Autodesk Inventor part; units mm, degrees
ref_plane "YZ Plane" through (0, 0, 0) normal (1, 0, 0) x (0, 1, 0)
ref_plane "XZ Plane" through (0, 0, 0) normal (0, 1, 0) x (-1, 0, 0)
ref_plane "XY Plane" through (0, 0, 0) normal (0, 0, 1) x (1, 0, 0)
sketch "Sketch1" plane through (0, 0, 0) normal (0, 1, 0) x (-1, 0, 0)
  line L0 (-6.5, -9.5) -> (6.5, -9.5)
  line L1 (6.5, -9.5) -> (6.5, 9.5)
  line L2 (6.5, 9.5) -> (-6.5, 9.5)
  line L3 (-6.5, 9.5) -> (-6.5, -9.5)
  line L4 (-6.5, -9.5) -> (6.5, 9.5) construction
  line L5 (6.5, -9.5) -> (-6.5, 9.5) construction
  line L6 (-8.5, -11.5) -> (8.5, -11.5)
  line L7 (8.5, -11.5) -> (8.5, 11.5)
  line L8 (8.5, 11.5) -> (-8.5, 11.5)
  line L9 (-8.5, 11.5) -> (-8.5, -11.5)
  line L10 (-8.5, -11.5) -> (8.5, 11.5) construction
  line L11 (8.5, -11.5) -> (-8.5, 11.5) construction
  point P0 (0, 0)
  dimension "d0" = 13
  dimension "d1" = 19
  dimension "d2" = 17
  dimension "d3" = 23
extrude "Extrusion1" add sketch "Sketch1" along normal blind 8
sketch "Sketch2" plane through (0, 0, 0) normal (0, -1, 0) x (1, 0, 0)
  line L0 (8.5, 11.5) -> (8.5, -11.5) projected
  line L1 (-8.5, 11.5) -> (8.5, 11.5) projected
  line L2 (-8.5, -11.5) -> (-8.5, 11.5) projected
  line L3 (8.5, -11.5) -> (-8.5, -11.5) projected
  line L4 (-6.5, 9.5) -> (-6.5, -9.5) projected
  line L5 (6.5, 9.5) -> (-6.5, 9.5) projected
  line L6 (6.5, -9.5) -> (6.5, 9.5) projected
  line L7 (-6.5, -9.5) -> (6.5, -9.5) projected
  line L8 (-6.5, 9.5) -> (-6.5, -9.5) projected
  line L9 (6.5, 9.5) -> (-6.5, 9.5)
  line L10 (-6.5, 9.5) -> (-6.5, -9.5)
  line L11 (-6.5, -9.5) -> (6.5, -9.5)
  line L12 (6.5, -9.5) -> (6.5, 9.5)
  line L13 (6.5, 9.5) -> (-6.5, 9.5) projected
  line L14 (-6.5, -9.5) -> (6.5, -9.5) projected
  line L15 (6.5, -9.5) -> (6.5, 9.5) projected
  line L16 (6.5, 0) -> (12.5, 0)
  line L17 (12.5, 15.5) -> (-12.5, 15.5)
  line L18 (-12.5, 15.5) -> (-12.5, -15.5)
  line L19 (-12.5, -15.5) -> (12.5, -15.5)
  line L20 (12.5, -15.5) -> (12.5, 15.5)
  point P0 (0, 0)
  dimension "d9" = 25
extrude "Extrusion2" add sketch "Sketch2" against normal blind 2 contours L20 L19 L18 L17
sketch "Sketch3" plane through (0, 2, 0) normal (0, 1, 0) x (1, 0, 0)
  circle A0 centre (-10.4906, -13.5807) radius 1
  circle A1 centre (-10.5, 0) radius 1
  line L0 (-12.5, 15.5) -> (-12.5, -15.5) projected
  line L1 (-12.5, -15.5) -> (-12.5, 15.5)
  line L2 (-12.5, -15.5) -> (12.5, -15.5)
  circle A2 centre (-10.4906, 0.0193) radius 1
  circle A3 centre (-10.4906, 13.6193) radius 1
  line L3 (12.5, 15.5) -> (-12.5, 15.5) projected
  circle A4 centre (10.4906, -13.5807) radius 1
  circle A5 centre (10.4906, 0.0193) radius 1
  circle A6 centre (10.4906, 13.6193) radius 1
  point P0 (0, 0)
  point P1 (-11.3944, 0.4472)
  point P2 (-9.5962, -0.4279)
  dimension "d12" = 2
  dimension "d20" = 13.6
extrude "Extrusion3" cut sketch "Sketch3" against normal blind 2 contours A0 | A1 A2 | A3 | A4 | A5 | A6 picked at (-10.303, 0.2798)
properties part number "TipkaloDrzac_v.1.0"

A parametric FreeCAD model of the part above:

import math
import FreeCAD as App
import Part
import Sketcher
from FreeCAD import Vector

doc = App.newDocument("Part")
body = doc.addObject("PartDesign::Body", "Body")

# Sketch on XZ plane
sketch1 = body.newObject("Sketcher::SketchObject", "Sketch")
sketch1.AttachmentSupport = (doc.getObject("XZ_Plane"), [""])
sketch1.MapMode = "FlatFace"
sketch1.addGeometry(Part.LineSegment(Vector(8, 12, 0), Vector(8, -12, 0)), False)
sketch1.addGeometry(Part.LineSegment(Vector(8, -12, 0), Vector(-8, -12, 0)), False)
sketch1.addGeometry(Part.LineSegment(Vector(-8, -12, 0), Vector(-8, 12, 0)), False)
sketch1.addGeometry(Part.LineSegment(Vector(-8, 12, 0), Vector(8, 12, 0)), False)
sketch1.addGeometry(Part.LineSegment(Vector(-6, -10, 0), Vector(6, -10, 0)), False)
sketch1.addGeometry(Part.LineSegment(Vector(6, -10, 0), Vector(6, 10, 0)), False)
sketch1.addGeometry(Part.LineSegment(Vector(6, 10, 0), Vector(-6, 10, 0)), False)
sketch1.addGeometry(Part.LineSegment(Vector(-6, 10, 0), Vector(-6, -10, 0)), False)
sketch1.addConstraint(Sketcher.Constraint("Coincident", 0, 2, 1, 1))
sketch1.addConstraint(Sketcher.Constraint("Coincident", 1, 2, 2, 1))
sketch1.addConstraint(Sketcher.Constraint("Coincident", 2, 2, 3, 1))
sketch1.addConstraint(Sketcher.Constraint("Coincident", 3, 2, 0, 1))
sketch1.addConstraint(Sketcher.Constraint("Coincident", 4, 2, 5, 1))
sketch1.addConstraint(Sketcher.Constraint("Coincident", 5, 2, 6, 1))
sketch1.addConstraint(Sketcher.Constraint("Coincident", 6, 2, 7, 1))
sketch1.addConstraint(Sketcher.Constraint("Coincident", 7, 2, 4, 1))
sketch1.addConstraint(Sketcher.Constraint("Vertical", 0))
sketch1.addConstraint(Sketcher.Constraint("Horizontal", 1))
sketch1.addConstraint(Sketcher.Constraint("Vertical", 2))
sketch1.addConstraint(Sketcher.Constraint("Horizontal", 3))
sketch1.addConstraint(Sketcher.Constraint("Horizontal", 4))
sketch1.addConstraint(Sketcher.Constraint("Vertical", 5))
sketch1.addConstraint(Sketcher.Constraint("Horizontal", 6))
sketch1.addConstraint(Sketcher.Constraint("Vertical", 7))
sketch1.addConstraint(Sketcher.Constraint("Symmetric", 0, 2, 2, 2, -1, 1))
sketch1.addConstraint(Sketcher.Constraint("Symmetric", 4, 2, 6, 2, -1, 1))
sketch1.addConstraint(Sketcher.Constraint("DistanceX", 1, 2, 1, 1, 17.0))
sketch1.addConstraint(Sketcher.Constraint("DistanceX", 4, 1, 4, 2, 13.0))
sketch1.addConstraint(Sketcher.Constraint("DistanceY", 0, 2, 0, 1, 23.0))
sketch1.addConstraint(Sketcher.Constraint("DistanceY", 5, 1, 5, 2, 19.0))
pad1 = body.newObject("PartDesign::Pad", "Pad")
pad1.Profile = sketch1
pad1.Length = 8
pad1.Reversed = True

# Sketch on XZ plane
sketch2 = body.newObject("Sketcher::SketchObject", "Sketch001")
sketch2.AttachmentSupport = (doc.getObject("XZ_Plane"), [""])
sketch2.MapMode = "FlatFace"
sketch2.addGeometry(Part.LineSegment(Vector(12, -16, 0), Vector(12, 0, 0)), False)
sketch2.addGeometry(Part.LineSegment(Vector(12, 0, 0), Vector(12, 16, 0)), False)
sketch2.addGeometry(Part.LineSegment(Vector(12, 16, 0), Vector(-12, 16, 0)), False)
sketch2.addGeometry(Part.LineSegment(Vector(-12, 16, 0), Vector(-12, -16, 0)), False)
sketch2.addGeometry(Part.LineSegment(Vector(-12, -16, 0), Vector(12, -16, 0)), False)
sketch2.addGeometry(Part.LineSegment(Vector(-8, 12, 0), Vector(8, 12, 0)), False)
sketch2.addGeometry(Part.LineSegment(Vector(8, 12, 0), Vector(8, 0, 0)), False)
sketch2.addGeometry(Part.LineSegment(Vector(8, 0, 0), Vector(8, -12, 0)), False)
sketch2.addGeometry(Part.LineSegment(Vector(8, -12, 0), Vector(-8, -12, 0)), False)
sketch2.addGeometry(Part.LineSegment(Vector(-8, -12, 0), Vector(-8, 12, 0)), False)
sketch2.addConstraint(Sketcher.Constraint("Coincident", 0, 2, 1, 1))
sketch2.addConstraint(Sketcher.Constraint("Coincident", 1, 2, 2, 1))
sketch2.addConstraint(Sketcher.Constraint("Coincident", 2, 2, 3, 1))
sketch2.addConstraint(Sketcher.Constraint("Coincident", 3, 2, 4, 1))
sketch2.addConstraint(Sketcher.Constraint("Coincident", 4, 2, 0, 1))
sketch2.addConstraint(Sketcher.Constraint("Coincident", 5, 2, 6, 1))
sketch2.addConstraint(Sketcher.Constraint("Coincident", 6, 2, 7, 1))
sketch2.addConstraint(Sketcher.Constraint("Coincident", 7, 2, 8, 1))
sketch2.addConstraint(Sketcher.Constraint("Coincident", 8, 2, 9, 1))
sketch2.addConstraint(Sketcher.Constraint("Coincident", 9, 2, 5, 1))
sketch2.addConstraint(Sketcher.Constraint("Vertical", 0))
sketch2.addConstraint(Sketcher.Constraint("Vertical", 1))
sketch2.addConstraint(Sketcher.Constraint("Horizontal", 2))
sketch2.addConstraint(Sketcher.Constraint("Vertical", 3))
sketch2.addConstraint(Sketcher.Constraint("Horizontal", 4))
sketch2.addConstraint(Sketcher.Constraint("Horizontal", 5))
sketch2.addConstraint(Sketcher.Constraint("Vertical", 6))
sketch2.addConstraint(Sketcher.Constraint("Vertical", 7))
sketch2.addConstraint(Sketcher.Constraint("Horizontal", 8))
sketch2.addConstraint(Sketcher.Constraint("Vertical", 9))
sketch2.addConstraint(Sketcher.Constraint("Symmetric", 1, 2, 3, 2, -1, 1))
sketch2.addConstraint(Sketcher.Constraint("Symmetric", 5, 2, 8, 2, -1, 1))
sketch2.addConstraint(Sketcher.Constraint("PointOnObject", 0, 2, -1))
sketch2.addConstraint(Sketcher.Constraint("PointOnObject", 6, 2, -1))
sketch2.addConstraint(Sketcher.Constraint("DistanceX", 2, 2, 2, 1, 25.0))
sketch2.addConstraint(Sketcher.Constraint("DistanceX", 5, 1, 5, 2, 17.0))
sketch2.addConstraint(Sketcher.Constraint("DistanceY", 3, 2, 3, 1, 31.0))
sketch2.addConstraint(Sketcher.Constraint("DistanceY", 9, 1, 9, 2, 23.0))
pad2 = body.newObject("PartDesign::Pad", "Pad001")
pad2.Profile = sketch2
pad2.Length = 2
pad2.Reversed = True

# Sketch on XZ plane
sketch3 = body.newObject("Sketcher::SketchObject", "Sketch002")
sketch3.AttachmentSupport = (doc.getObject("XZ_Plane"), [""])
sketch3.MapMode = "FlatFace"
sketch3.AttachmentOffset = App.Placement(Vector(0, 0, -2), App.Rotation())
sketch3.addGeometry(Part.Circle(Vector(-10.5, 13.6, 0), Vector(0, 0, 1), 1), False)
sketch3.addGeometry(Part.ArcOfCircle(Part.Circle(Vector(-10.5, 0, 0), Vector(0, 0, 1), 1), math.radians(-153), math.radians(25)), False)
sketch3.addGeometry(Part.ArcOfCircle(Part.Circle(Vector(-10.5, 0, 0), Vector(0, 0, 1), 1), math.radians(27), math.radians(205)), False)
sketch3.addGeometry(Part.Circle(Vector(-10.5, -13.6, 0), Vector(0, 0, 1), 1), False)
sketch3.addGeometry(Part.Circle(Vector(10.5, 13.6, 0), Vector(0, 0, 1), 1), False)
sketch3.addGeometry(Part.Circle(Vector(10.5, 0, 0), Vector(0, 0, 1), 1), False)
sketch3.addGeometry(Part.Circle(Vector(10.5, -13.6, 0), Vector(0, 0, 1), 1), False)
sketch3.addConstraint(Sketcher.Constraint("Coincident", 1, 1, 2, 2))
sketch3.addConstraint(Sketcher.Constraint("Coincident", 2, 1, 1, 2))
sketch3.addConstraint(Sketcher.Constraint("Equal", 0, 1))
sketch3.addConstraint(Sketcher.Constraint("Equal", 1, 2))
sketch3.addConstraint(Sketcher.Constraint("Equal", 2, 3))
sketch3.addConstraint(Sketcher.Constraint("Equal", 3, 4))
sketch3.addConstraint(Sketcher.Constraint("Equal", 4, 5))
sketch3.addConstraint(Sketcher.Constraint("Equal", 5, 6))
sketch3.addConstraint(Sketcher.Constraint("Symmetric", 0, 3, 4, 3, -2))
sketch3.addConstraint(Sketcher.Constraint("Symmetric", 2, 3, 5, 3, -2))
sketch3.addConstraint(Sketcher.Constraint("Symmetric", 3, 3, 6, 3, -2))
sketch3.addConstraint(Sketcher.Constraint("PointOnObject", 1, 3, -1))
sketch3.addConstraint(Sketcher.Constraint("Vertical", 0, 3, 2, 3))
sketch3.addConstraint(Sketcher.Constraint("Vertical", 2, 3, 3, 3))
sketch3.addConstraint(Sketcher.Constraint("Diameter", 0, 2.0))
sketch3.addConstraint(Sketcher.Constraint("DistanceY", 2, 3, 0, 3, 13.6))
sketch3.addConstraint(Sketcher.Constraint("DistanceY", 3, 3, 2, 3, 13.6))
sketch3.addConstraint(Sketcher.Constraint("DistanceX", 1, 3, -1, 1, 10.5))
sketch3.addConstraint(Sketcher.Constraint("DistanceX", 1, 1, 5, 3, 21.885))
sketch3.addConstraint(Sketcher.Constraint("DistanceX", 1, 1, 2, 1, 1.798))
pocket1 = body.newObject("PartDesign::Pocket", "Pocket")
pocket1.Profile = sketch3
pocket1.Length = 2
pocket1.Reversed = True

doc.recompute()
